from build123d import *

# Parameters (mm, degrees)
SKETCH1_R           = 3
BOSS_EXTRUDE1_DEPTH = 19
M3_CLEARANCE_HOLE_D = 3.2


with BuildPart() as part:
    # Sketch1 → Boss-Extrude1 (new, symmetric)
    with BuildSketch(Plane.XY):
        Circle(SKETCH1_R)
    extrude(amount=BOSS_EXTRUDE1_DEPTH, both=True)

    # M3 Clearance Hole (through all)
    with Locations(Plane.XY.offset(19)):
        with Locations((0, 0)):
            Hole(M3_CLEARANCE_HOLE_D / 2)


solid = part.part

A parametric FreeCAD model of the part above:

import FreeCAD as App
import Part
import Sketcher
from FreeCAD import Vector
Q = App.Units.Quantity

doc = App.newDocument("Part")
body = doc.addObject("PartDesign::Body", "Body")

sketch1 = doc.addObject("Sketcher::SketchObject", "Sketch")
body.addObject(sketch1)
sketch1.AttachmentSupport = (doc.XY_Plane, [""])
sketch1.MapMode = "FlatFace"
sketch1.addGeometry(Part.Circle(Vector(0, 0, 0), Vector(0, 0, 1), 3), False)
sketch1.addConstraint(Sketcher.Constraint("Coincident", 0, 3, -1, 1))
sketch1.addConstraint(Sketcher.Constraint("Diameter", 0, Q("6 mm")))
pad1 = doc.addObject("PartDesign::Pad", "Pad")
body.addObject(pad1)
pad1.Profile = sketch1
pad1.Length = 38
pad1.Midplane = True

sketch2 = doc.addObject("Sketcher::SketchObject", "Sketch001")
body.addObject(sketch2)
sketch2.AttachmentSupport = (doc.XY_Plane, [""])
sketch2.MapMode = "FlatFace"
sketch2.AttachmentOffset = App.Placement(Vector(0, 0, 19), App.Rotation())
sketch2.addGeometry(Part.Circle(Vector(0, 0, 0), Vector(0, 0, 1), 1.6), False)
sketch2.addConstraint(Sketcher.Constraint("Coincident", 0, 3, -1, 1))
sketch2.addConstraint(Sketcher.Constraint("Diameter", 0, Q("3.2 mm")))
doc.recompute()
hole = doc.addObject("PartDesign::Hole", "Hole")
body.addObject(hole)
hole.Profile = sketch2
hole.ThreadType = "None"
hole.Diameter = 3.2
hole.DepthType = "ThroughAll"

doc.recompute()
